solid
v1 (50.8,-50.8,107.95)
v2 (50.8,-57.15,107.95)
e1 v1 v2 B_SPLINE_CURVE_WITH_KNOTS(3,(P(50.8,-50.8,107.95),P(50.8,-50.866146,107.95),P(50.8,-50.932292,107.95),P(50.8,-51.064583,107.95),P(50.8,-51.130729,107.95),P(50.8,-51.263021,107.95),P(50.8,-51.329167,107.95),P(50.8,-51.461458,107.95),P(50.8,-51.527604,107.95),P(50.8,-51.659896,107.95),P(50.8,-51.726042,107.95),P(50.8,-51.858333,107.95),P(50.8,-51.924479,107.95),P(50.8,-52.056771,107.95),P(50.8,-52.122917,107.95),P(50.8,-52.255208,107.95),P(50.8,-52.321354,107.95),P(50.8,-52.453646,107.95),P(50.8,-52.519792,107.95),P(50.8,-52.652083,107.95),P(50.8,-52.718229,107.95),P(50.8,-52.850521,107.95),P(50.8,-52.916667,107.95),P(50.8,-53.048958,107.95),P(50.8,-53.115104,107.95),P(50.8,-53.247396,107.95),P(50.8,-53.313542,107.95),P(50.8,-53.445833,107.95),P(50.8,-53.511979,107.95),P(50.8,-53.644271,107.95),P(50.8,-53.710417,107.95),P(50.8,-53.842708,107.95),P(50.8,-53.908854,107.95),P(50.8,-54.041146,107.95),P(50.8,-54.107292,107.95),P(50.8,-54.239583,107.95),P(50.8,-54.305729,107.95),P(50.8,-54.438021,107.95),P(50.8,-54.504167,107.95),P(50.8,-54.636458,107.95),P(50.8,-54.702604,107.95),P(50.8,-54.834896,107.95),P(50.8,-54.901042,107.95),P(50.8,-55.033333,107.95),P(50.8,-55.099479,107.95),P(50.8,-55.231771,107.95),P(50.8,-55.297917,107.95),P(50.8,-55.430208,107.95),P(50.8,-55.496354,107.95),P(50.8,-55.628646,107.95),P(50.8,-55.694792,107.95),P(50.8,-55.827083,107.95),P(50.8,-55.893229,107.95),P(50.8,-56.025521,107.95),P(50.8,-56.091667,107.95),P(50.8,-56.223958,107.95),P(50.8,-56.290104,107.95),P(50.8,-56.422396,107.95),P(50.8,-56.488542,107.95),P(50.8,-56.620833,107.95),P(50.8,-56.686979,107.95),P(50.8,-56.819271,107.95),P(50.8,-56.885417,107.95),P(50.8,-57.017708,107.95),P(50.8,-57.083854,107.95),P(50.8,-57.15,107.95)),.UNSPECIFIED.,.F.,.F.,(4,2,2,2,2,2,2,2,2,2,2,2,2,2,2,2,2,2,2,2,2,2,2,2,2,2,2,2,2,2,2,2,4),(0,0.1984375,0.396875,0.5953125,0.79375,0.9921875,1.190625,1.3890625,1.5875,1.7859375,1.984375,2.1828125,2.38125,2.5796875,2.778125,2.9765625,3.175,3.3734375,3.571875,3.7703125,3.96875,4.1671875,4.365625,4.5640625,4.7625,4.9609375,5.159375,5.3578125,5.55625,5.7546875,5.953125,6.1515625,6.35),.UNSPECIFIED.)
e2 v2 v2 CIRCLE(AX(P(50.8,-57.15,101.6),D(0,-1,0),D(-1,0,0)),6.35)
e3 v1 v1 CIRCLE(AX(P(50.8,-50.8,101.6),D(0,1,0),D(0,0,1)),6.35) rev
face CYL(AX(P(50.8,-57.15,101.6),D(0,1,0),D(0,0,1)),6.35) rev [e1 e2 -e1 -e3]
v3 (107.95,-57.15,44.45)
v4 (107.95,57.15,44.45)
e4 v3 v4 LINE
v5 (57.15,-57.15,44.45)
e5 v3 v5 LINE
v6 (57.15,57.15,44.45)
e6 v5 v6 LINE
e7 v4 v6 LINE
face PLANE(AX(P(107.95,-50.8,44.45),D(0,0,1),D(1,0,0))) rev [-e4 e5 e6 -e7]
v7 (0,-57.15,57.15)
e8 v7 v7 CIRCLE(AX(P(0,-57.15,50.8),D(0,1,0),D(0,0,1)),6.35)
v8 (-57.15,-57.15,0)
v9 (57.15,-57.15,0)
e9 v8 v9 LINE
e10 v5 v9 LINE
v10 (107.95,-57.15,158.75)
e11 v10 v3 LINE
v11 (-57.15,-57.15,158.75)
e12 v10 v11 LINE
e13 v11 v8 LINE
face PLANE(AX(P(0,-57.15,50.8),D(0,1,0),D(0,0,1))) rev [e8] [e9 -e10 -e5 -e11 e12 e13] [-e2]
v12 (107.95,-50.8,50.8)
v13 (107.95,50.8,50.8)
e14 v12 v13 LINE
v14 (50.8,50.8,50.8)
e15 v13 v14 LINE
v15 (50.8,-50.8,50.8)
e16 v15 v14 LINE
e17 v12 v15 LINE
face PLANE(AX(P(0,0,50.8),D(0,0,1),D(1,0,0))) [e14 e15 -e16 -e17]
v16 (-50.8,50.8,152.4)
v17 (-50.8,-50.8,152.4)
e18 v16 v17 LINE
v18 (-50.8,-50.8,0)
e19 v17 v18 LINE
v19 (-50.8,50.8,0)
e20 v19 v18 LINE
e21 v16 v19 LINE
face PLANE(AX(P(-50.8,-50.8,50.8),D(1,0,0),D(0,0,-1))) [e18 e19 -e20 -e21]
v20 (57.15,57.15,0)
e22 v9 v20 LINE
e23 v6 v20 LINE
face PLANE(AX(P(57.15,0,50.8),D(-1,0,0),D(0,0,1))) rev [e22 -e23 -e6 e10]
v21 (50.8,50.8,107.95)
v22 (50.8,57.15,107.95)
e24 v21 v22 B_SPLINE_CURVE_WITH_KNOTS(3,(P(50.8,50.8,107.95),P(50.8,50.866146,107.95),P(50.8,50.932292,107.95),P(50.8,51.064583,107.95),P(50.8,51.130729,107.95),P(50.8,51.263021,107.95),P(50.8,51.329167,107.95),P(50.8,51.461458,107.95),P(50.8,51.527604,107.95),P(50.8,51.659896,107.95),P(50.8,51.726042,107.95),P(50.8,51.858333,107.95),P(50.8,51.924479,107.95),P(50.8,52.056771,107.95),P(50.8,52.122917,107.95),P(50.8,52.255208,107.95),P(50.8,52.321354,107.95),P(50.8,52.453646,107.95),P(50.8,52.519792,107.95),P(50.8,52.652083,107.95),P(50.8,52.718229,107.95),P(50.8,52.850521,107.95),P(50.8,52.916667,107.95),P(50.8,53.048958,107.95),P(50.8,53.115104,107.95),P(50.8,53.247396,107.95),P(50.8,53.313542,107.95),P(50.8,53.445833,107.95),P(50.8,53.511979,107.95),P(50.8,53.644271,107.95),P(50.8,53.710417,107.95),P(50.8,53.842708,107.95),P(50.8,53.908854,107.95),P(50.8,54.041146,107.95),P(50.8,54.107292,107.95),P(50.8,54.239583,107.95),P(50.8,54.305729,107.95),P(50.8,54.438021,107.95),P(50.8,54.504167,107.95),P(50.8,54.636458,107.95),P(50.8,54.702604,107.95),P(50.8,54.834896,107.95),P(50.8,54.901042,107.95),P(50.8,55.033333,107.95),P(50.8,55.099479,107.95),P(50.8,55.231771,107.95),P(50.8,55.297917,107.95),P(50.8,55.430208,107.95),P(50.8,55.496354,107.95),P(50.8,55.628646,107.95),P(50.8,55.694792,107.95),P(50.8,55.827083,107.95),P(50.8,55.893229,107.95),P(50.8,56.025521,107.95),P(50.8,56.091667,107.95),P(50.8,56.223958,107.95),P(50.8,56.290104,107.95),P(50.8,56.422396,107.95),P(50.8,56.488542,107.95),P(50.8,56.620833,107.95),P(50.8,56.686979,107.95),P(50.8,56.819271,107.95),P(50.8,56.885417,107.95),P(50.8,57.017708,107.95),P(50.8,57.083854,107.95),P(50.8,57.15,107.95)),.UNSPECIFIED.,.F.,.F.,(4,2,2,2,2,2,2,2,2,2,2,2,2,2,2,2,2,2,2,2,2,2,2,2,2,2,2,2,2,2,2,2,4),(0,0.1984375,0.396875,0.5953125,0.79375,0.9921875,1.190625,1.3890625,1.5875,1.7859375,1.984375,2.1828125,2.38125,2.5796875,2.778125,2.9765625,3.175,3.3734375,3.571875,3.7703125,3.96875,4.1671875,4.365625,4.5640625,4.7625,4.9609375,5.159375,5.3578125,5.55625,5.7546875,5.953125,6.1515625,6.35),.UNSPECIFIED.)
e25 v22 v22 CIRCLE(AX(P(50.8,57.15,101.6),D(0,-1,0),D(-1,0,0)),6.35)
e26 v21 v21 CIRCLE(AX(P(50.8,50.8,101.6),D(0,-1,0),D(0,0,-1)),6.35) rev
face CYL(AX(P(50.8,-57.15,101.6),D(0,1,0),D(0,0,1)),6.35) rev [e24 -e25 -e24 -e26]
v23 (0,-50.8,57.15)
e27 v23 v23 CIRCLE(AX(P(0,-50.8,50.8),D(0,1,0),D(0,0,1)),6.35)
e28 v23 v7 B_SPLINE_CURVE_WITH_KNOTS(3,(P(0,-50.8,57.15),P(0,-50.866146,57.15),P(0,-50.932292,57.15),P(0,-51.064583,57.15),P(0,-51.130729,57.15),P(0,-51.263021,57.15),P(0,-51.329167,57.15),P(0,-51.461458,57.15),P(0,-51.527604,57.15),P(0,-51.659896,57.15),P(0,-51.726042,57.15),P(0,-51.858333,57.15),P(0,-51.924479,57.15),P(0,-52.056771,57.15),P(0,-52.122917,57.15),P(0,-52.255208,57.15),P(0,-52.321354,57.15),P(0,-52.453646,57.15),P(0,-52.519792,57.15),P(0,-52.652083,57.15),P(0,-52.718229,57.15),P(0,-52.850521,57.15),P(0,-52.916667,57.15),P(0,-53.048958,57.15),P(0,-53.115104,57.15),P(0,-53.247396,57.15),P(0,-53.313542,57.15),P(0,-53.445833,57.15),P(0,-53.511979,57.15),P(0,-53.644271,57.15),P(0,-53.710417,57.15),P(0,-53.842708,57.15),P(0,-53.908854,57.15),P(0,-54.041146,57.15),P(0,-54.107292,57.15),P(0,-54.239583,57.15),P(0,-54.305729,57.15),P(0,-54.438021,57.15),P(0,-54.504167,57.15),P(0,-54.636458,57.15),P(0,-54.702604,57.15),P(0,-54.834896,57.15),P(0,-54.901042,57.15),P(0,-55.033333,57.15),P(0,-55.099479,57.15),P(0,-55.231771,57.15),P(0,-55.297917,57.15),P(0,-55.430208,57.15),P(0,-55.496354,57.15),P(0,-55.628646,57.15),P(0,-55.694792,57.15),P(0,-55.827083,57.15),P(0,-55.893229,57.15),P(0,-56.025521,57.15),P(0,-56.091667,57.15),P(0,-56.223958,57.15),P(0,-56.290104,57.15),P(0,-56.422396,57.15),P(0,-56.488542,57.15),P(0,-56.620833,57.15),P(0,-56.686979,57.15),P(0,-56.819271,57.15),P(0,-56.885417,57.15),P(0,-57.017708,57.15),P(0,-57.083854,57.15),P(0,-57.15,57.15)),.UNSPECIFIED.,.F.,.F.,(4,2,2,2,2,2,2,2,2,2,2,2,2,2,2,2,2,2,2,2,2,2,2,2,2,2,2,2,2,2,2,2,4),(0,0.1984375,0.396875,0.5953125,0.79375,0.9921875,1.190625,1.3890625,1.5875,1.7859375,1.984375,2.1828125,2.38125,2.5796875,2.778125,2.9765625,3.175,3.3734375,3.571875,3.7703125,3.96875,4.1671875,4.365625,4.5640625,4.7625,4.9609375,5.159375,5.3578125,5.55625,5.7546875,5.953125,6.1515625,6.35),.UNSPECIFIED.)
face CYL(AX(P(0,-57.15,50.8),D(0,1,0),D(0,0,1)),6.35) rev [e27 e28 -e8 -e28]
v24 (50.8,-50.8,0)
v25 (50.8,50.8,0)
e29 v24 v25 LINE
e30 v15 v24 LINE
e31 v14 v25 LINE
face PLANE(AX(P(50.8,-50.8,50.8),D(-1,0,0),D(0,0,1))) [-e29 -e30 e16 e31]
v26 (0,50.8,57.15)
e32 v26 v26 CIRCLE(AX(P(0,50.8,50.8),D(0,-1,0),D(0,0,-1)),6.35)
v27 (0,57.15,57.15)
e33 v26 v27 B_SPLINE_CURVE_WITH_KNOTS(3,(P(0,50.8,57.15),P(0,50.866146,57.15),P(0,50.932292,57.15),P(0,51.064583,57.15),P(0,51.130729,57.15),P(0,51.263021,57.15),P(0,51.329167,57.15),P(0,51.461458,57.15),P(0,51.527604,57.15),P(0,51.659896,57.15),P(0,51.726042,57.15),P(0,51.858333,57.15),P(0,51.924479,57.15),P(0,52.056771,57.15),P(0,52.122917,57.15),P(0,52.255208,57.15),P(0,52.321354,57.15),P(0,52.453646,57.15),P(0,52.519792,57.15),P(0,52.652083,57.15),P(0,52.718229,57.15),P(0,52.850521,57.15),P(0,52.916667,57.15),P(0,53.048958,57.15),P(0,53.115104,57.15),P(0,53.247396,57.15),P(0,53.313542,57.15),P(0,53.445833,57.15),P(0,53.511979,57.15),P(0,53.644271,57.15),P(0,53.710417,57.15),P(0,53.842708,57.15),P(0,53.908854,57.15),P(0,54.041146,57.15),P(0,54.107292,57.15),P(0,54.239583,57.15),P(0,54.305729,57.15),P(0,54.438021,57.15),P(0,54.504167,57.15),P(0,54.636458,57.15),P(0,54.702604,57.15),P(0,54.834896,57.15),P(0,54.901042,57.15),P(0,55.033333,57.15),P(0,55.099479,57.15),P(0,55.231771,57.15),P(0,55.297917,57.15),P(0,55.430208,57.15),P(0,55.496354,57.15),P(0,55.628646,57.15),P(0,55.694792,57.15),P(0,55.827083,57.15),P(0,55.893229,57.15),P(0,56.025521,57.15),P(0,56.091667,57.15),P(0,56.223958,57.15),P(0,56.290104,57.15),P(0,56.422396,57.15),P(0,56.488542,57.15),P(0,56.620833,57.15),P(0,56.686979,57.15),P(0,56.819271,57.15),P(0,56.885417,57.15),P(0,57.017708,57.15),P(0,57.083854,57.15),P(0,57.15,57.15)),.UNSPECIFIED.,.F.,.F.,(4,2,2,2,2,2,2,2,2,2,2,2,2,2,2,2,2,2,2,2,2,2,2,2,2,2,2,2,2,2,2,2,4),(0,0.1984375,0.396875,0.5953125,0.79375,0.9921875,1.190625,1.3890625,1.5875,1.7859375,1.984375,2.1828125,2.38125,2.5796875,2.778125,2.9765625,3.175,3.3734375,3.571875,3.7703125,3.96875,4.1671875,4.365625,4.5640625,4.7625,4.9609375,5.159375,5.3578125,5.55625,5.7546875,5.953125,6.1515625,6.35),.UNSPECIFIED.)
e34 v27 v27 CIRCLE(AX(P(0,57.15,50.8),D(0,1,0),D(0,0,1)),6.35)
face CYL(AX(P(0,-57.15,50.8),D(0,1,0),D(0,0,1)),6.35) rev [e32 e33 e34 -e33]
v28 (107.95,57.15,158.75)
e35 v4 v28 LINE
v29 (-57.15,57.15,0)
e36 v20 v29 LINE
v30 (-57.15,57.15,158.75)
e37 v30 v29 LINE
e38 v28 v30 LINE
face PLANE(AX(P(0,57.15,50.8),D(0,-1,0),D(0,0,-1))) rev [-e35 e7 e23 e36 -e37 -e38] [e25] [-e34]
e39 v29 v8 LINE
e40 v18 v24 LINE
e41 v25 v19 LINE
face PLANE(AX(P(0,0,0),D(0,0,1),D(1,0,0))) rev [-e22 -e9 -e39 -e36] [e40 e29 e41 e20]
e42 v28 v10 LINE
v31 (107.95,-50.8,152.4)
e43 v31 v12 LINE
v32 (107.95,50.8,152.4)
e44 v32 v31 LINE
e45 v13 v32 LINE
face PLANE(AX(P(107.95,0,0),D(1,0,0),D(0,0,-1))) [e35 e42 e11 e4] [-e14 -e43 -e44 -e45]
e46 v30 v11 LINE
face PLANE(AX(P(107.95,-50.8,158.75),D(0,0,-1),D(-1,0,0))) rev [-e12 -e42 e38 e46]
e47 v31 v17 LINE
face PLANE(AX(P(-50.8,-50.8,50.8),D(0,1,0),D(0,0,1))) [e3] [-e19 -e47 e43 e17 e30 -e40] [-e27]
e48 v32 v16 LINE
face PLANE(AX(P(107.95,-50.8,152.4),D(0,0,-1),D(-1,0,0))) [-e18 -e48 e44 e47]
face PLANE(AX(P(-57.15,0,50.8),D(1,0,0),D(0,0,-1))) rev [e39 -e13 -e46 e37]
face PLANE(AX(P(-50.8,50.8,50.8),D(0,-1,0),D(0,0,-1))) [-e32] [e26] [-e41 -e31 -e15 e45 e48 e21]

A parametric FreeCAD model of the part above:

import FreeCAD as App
import Part
import Sketcher

V = App.Vector
Q = App.Units.Quantity

doc = App.newDocument("Part")
params = doc.addObject("Spreadsheet::Sheet", "Params")
for row, (alias, value) in enumerate([
    ("sketch1_width", "4 in"),
    ("sketch1_width2", "4.5 in"),
    ("pad1_length", "2 in"),
    ("sketch2_width", "4 in"),
    ("sketch2_width2", "4.5 in"),
    ("pad2_length", "2 in"),
    ("sketch3_width", "4 in"),
    ("sketch3_width2", "4.5 in"),
    ("sketch3_height", "4.25 in"),
    ("pad3_length", "4.5 in"),
    ("sketch4_height", "4 in"),
    ("sketch4_width", "0.25 in"),
    ("sketch5_diameter", "0.5 in"),
], start=1):
    params.set(f"A{row}", alias)
    params.set(f"B{row}", "=" + value)
    params.setAlias(f"B{row}", alias)

body = doc.addObject("PartDesign::Body", "Body")

# Sketch on XY plane
sketch1 = body.newObject("Sketcher::SketchObject", "Sketch")
sketch1.AttachmentSupport = (doc.getObject("XY_Plane"), [""])
sketch1.MapMode = "FlatFace"
sketch1.addGeometry(Part.LineSegment(V(-57.15, 57.15, 0), V(-57.15, -57.15, 0)), False)
sketch1.addGeometry(Part.LineSegment(V(-57.15, -57.15, 0), V(57.15, -57.15, 0)), False)
sketch1.addGeometry(Part.LineSegment(V(57.15, -57.15, 0), V(57.15, 57.15, 0)), False)
sketch1.addGeometry(Part.LineSegment(V(57.15, 57.15, 0), V(-57.15, 57.15, 0)), False)
sketch1.addGeometry(Part.LineSegment(V(50.8, -50.8, 0), V(-50.8, -50.8, 0)), False)
sketch1.addGeometry(Part.LineSegment(V(-50.8, -50.8, 0), V(-50.8, 50.8, 0)), False)
sketch1.addGeometry(Part.LineSegment(V(-50.8, 50.8, 0), V(50.8, 50.8, 0)), False)
sketch1.addGeometry(Part.LineSegment(V(50.8, 50.8, 0), V(50.8, -50.8, 0)), False)
sketch1.addConstraint(Sketcher.Constraint("Coincident", 0, 2, 1, 1))
sketch1.addConstraint(Sketcher.Constraint("Coincident", 1, 2, 2, 1))
sketch1.addConstraint(Sketcher.Constraint("Coincident", 2, 2, 3, 1))
sketch1.addConstraint(Sketcher.Constraint("Coincident", 3, 2, 0, 1))
sketch1.addConstraint(Sketcher.Constraint("Coincident", 4, 2, 5, 1))
sketch1.addConstraint(Sketcher.Constraint("Coincident", 5, 2, 6, 1))
sketch1.addConstraint(Sketcher.Constraint("Coincident", 6, 2, 7, 1))
sketch1.addConstraint(Sketcher.Constraint("Coincident", 7, 2, 4, 1))
sketch1.addConstraint(Sketcher.Constraint("Vertical", 0))
sketch1.addConstraint(Sketcher.Constraint("Horizontal", 1))
sketch1.addConstraint(Sketcher.Constraint("Vertical", 2))
sketch1.addConstraint(Sketcher.Constraint("Horizontal", 3))
sketch1.addConstraint(Sketcher.Constraint("Horizontal", 4))
sketch1.addConstraint(Sketcher.Constraint("Vertical", 5))
sketch1.addConstraint(Sketcher.Constraint("Horizontal", 6))
sketch1.addConstraint(Sketcher.Constraint("Vertical", 7))
sketch1.addConstraint(Sketcher.Constraint("Symmetric", 0, 2, 2, 2, -1, 1))
sketch1.addConstraint(Sketcher.Constraint("Symmetric", 4, 2, 6, 2, -1, 1))
sketch1.addConstraint(Sketcher.Constraint("Equal", 3, 0))
sketch1.addConstraint(Sketcher.Constraint("Equal", 6, 5))
sketch1.addConstraint(Sketcher.Constraint("DistanceX", 4, 2, 4, 1, Q("4 in")))
sketch1.addConstraint(Sketcher.Constraint("DistanceX", 1, 1, 1, 2, Q("4.5 in")))
sketch1.setExpression("Constraints[20]", "Params.sketch1_width")
sketch1.setExpression("Constraints[21]", "Params.sketch1_width2")
pad1 = body.newObject("PartDesign::Pad", "Pad")
pad1.Profile = sketch1
pad1.setExpression("Length", "Params.pad1_length")

# Sketch on YZ plane
sketch2 = body.newObject("Sketcher::SketchObject", "Sketch001")
sketch2.AttachmentSupport = (doc.getObject("YZ_Plane"), [""])
sketch2.MapMode = "FlatFace"
sketch2.AttachmentOffset = App.Placement(V(0, 0, 2.25 * 25.4), App.Rotation())
sketch2.addGeometry(Part.LineSegment(V(57.15, 158.75, 0), V(-57.15, 158.75, 0)), False)
sketch2.addGeometry(Part.LineSegment(V(-57.15, 158.75, 0), V(-57.15, 44.45, 0)), False)
sketch2.addGeometry(Part.LineSegment(V(-57.15, 44.45, 0), V(57.15, 44.45, 0)), False)
sketch2.addGeometry(Part.LineSegment(V(57.15, 44.45, 0), V(57.15, 158.75, 0)), False)
sketch2.addGeometry(Part.LineSegment(V(-50.8, 50.8, 0), V(-50.8, 152.4, 0)), False)
sketch2.addGeometry(Part.LineSegment(V(-50.8, 152.4, 0), V(50.8, 152.4, 0)), False)
sketch2.addGeometry(Part.LineSegment(V(50.8, 152.4, 0), V(50.8, 50.8, 0)), False)
sketch2.addGeometry(Part.LineSegment(V(50.8, 50.8, 0), V(-50.8, 50.8, 0)), False)
sketch2.addConstraint(Sketcher.Constraint("Coincident", 0, 2, 1, 1))
sketch2.addConstraint(Sketcher.Constraint("Coincident", 1, 2, 2, 1))
sketch2.addConstraint(Sketcher.Constraint("Coincident", 2, 2, 3, 1))
sketch2.addConstraint(Sketcher.Constraint("Coincident", 3, 2, 0, 1))
sketch2.addConstraint(Sketcher.Constraint("Coincident", 4, 2, 5, 1))
sketch2.addConstraint(Sketcher.Constraint("Coincident", 5, 2, 6, 1))
sketch2.addConstraint(Sketcher.Constraint("Coincident", 6, 2, 7, 1))
sketch2.addConstraint(Sketcher.Constraint("Coincident", 7, 2, 4, 1))
sketch2.addConstraint(Sketcher.Constraint("Horizontal", 0))
sketch2.addConstraint(Sketcher.Constraint("Vertical", 1))
sketch2.addConstraint(Sketcher.Constraint("Horizontal", 2))
sketch2.addConstraint(Sketcher.Constraint("Vertical", 3))
sketch2.addConstraint(Sketcher.Constraint("Vertical", 4))
sketch2.addConstraint(Sketcher.Constraint("Horizontal", 5))
sketch2.addConstraint(Sketcher.Constraint("Vertical", 6))
sketch2.addConstraint(Sketcher.Constraint("Horizontal", 7))
sketch2.addConstraint(Sketcher.Constraint("Equal", 2, 1))
sketch2.addConstraint(Sketcher.Constraint("Equal", 7, 4))
sketch2.addConstraint(Sketcher.Constraint("DistanceX", 5, 1, 5, 2, Q("4 in")))
sketch2.addConstraint(Sketcher.Constraint("DistanceX", 0, 2, 0, 1, Q("4.5 in")))
sketch2.addConstraint(Sketcher.Constraint("DistanceX", 4, 2, -1, 1, Q("2 in")))
sketch2.addConstraint(Sketcher.Constraint("DistanceY", -1, 1, 4, 2, Q("6 in")))
sketch2.addConstraint(Sketcher.Constraint("DistanceX", 0, 2, -1, 1, Q("2.25 in")))
sketch2.addConstraint(Sketcher.Constraint("DistanceY", -1, 1, 0, 2, Q("6.25 in")))
sketch2.setExpression("Constraints[18]", "Params.sketch2_width")
sketch2.setExpression("Constraints[19]", "Params.sketch2_width2")
pad2 = body.newObject("PartDesign::Pad", "Pad001")
pad2.Profile = sketch2
pad2.setExpression("Length", "Params.pad2_length")

# Sketch on YZ plane
sketch3 = body.newObject("Sketcher::SketchObject", "Sketch002")
sketch3.AttachmentSupport = (doc.getObject("YZ_Plane"), [""])
sketch3.MapMode = "FlatFace"
sketch3.AttachmentOffset = App.Placement(V(0, 0, 2.25 * 25.4), App.Rotation())
sketch3.addGeometry(Part.LineSegment(V(-50.8, 50.8, 0), V(-57.15, 50.8, 0)), False)
sketch3.addGeometry(Part.LineSegment(V(-57.15, 50.8, 0), V(-57.15, 158.75, 0)), False)
sketch3.addGeometry(Part.LineSegment(V(-57.15, 158.75, 0), V(57.15, 158.75, 0)), False)
sketch3.addGeometry(Part.LineSegment(V(57.15, 158.75, 0), V(57.15, 50.8, 0)), False)
sketch3.addGeometry(Part.LineSegment(V(57.15, 50.8, 0), V(50.8, 50.8, 0)), False)
sketch3.addGeometry(Part.LineSegment(V(50.8, 50.8, 0), V(50.8, 152.4, 0)), False)
sketch3.addGeometry(Part.LineSegment(V(50.8, 152.4, 0), V(-50.8, 152.4, 0)), False)
sketch3.addGeometry(Part.LineSegment(V(-50.8, 152.4, 0), V(-50.8, 50.8, 0)), False)
sketch3.addConstraint(Sketcher.Constraint("Coincident", 0, 2, 1, 1))
sketch3.addConstraint(Sketcher.Constraint("Coincident", 1, 2, 2, 1))
sketch3.addConstraint(Sketcher.Constraint("Coincident", 2, 2, 3, 1))
sketch3.addConstraint(Sketcher.Constraint("Coincident", 3, 2, 4, 1))
sketch3.addConstraint(Sketcher.Constraint("Coincident", 4, 2, 5, 1))
sketch3.addConstraint(Sketcher.Constraint("Coincident", 5, 2, 6, 1))
sketch3.addConstraint(Sketcher.Constraint("Coincident", 6, 2, 7, 1))
sketch3.addConstraint(Sketcher.Constraint("Coincident", 7, 2, 0, 1))
sketch3.addConstraint(Sketcher.Constraint("Horizontal", 0))
sketch3.addConstraint(Sketcher.Constraint("Vertical", 1))
sketch3.addConstraint(Sketcher.Constraint("Horizontal", 2))
sketch3.addConstraint(Sketcher.Constraint("Vertical", 3))
sketch3.addConstraint(Sketcher.Constraint("Horizontal", 4))
sketch3.addConstraint(Sketcher.Constraint("Vertical", 5))
sketch3.addConstraint(Sketcher.Constraint("Horizontal", 6))
sketch3.addConstraint(Sketcher.Constraint("Vertical", 7))
sketch3.addConstraint(Sketcher.Constraint("Symmetric", 0, 2, 3, 2, -2))
sketch3.addConstraint(Sketcher.Constraint("Equal", 0, 4))
sketch3.addConstraint(Sketcher.Constraint("Equal", 6, 5))
sketch3.addConstraint(Sketcher.Constraint("DistanceX", 6, 2, 6, 1, Q("4 in")))
sketch3.addConstraint(Sketcher.Constraint("DistanceX", 2, 1, 2, 2, Q("4.5 in")))
sketch3.addConstraint(Sketcher.Constraint("DistanceY", -1, 1, 0, 2, Q("2 in")))
sketch3.addConstraint(Sketcher.Constraint("DistanceY", 1, 1, 1, 2, Q("4.25 in")))
sketch3.setExpression("Constraints[19]", "Params.sketch3_width")
sketch3.setExpression("Constraints[20]", "Params.sketch3_width2")
sketch3.setExpression("Constraints[22]", "Params.sketch3_height")
pad3 = body.newObject("PartDesign::Pad", "Pad002")
pad3.Profile = sketch3
pad3.setExpression("Length", "Params.pad3_length")
pad3.Reversed = True

# Sketch on XY plane
sketch4 = body.newObject("Sketcher::SketchObject", "Sketch003")
sketch4.AttachmentSupport = (doc.getObject("XY_Plane"), [""])
sketch4.MapMode = "FlatFace"
sketch4.AttachmentOffset = App.Placement(V(0, 0, 2 * 25.4), App.Rotation())
sketch4.addGeometry(Part.LineSegment(V(-57.15, 50.8, 0), V(-57.15, -50.8, 0)), False)
sketch4.addGeometry(Part.LineSegment(V(-57.15, -50.8, 0), V(-50.8, -50.8, 0)), False)
sketch4.addGeometry(Part.LineSegment(V(-50.8, -50.8, 0), V(-50.8, 50.8, 0)), False)
sketch4.addGeometry(Part.LineSegment(V(-50.8, 50.8, 0), V(-57.15, 50.8, 0)), False)
sketch4.addConstraint(Sketcher.Constraint("Coincident", 0, 2, 1, 1))
sketch4.addConstraint(Sketcher.Constraint("Coincident", 1, 2, 2, 1))
sketch4.addConstraint(Sketcher.Constraint("Coincident", 2, 2, 3, 1))
sketch4.addConstraint(Sketcher.Constraint("Coincident", 3, 2, 0, 1))
sketch4.addConstraint(Sketcher.Constraint("Vertical", 0))
sketch4.addConstraint(Sketcher.Constraint("Horizontal", 1))
sketch4.addConstraint(Sketcher.Constraint("Vertical", 2))
sketch4.addConstraint(Sketcher.Constraint("Horizontal", 3))
sketch4.addConstraint(Sketcher.Constraint("DistanceY", 0, 2, 0, 1, Q("4 in")))
sketch4.addConstraint(Sketcher.Constraint("DistanceY", 0, 2, -1, 1, Q("2 in")))
sketch4.addConstraint(Sketcher.Constraint("DistanceX", 1, 2, -1, 1, Q("2 in")))
sketch4.addConstraint(Sketcher.Constraint("DistanceX", 1, 1, 1, 2, Q("0.25 in")))
sketch4.setExpression("Constraints[8]", "Params.sketch4_height")
sketch4.setExpression("Constraints[11]", "Params.sketch4_width")
pad4 = body.newObject("PartDesign::Pad", "Pad003")
pad4.Profile = sketch4
pad4.Type = "UpToFirst"

# Sketch on XZ plane
sketch5 = body.newObject("Sketcher::SketchObject", "Sketch004")
sketch5.AttachmentSupport = (doc.getObject("XZ_Plane"), [""])
sketch5.MapMode = "FlatFace"
sketch5.AttachmentOffset = App.Placement(V(0, 0, -2.25 * 25.4), App.Rotation())
sketch5.addGeometry(Part.Circle(V(0, 50.8, 0), V(0, 0, 1), 6.35), False)
sketch5.addConstraint(Sketcher.Constraint("PointOnObject", 0, 3, -2))
sketch5.addConstraint(Sketcher.Constraint("Diameter", 0, Q("0.5 in")))
sketch5.addConstraint(Sketcher.Constraint("DistanceY", -1, 1, 0, 3, Q("2 in")))
sketch5.setExpression("Constraints[1]", "Params.sketch5_diameter")
pocket1 = body.newObject("PartDesign::Pocket", "Pocket")
pocket1.Profile = sketch5
pocket1.Type = "ThroughAll"
pocket1.Reversed = True
doc.recompute()

datumplane = body.newObject("PartDesign::Plane", "DatumPlane")
datumplane.Placement = App.Placement(V(50.8, 0, 50.8), App.Rotation(V(-0.707106781, 0, 0.707106781), V(0, -1, 0), V(0.707106781, 0, 0.707106781), "ZXY"))
mirrored = body.newObject("PartDesign::Mirrored", "Mirrored")
mirrored.Originals = [pocket1]
mirrored.MirrorPlane = (datumplane, [""])
body.Tip = mirrored

doc.recompute()
